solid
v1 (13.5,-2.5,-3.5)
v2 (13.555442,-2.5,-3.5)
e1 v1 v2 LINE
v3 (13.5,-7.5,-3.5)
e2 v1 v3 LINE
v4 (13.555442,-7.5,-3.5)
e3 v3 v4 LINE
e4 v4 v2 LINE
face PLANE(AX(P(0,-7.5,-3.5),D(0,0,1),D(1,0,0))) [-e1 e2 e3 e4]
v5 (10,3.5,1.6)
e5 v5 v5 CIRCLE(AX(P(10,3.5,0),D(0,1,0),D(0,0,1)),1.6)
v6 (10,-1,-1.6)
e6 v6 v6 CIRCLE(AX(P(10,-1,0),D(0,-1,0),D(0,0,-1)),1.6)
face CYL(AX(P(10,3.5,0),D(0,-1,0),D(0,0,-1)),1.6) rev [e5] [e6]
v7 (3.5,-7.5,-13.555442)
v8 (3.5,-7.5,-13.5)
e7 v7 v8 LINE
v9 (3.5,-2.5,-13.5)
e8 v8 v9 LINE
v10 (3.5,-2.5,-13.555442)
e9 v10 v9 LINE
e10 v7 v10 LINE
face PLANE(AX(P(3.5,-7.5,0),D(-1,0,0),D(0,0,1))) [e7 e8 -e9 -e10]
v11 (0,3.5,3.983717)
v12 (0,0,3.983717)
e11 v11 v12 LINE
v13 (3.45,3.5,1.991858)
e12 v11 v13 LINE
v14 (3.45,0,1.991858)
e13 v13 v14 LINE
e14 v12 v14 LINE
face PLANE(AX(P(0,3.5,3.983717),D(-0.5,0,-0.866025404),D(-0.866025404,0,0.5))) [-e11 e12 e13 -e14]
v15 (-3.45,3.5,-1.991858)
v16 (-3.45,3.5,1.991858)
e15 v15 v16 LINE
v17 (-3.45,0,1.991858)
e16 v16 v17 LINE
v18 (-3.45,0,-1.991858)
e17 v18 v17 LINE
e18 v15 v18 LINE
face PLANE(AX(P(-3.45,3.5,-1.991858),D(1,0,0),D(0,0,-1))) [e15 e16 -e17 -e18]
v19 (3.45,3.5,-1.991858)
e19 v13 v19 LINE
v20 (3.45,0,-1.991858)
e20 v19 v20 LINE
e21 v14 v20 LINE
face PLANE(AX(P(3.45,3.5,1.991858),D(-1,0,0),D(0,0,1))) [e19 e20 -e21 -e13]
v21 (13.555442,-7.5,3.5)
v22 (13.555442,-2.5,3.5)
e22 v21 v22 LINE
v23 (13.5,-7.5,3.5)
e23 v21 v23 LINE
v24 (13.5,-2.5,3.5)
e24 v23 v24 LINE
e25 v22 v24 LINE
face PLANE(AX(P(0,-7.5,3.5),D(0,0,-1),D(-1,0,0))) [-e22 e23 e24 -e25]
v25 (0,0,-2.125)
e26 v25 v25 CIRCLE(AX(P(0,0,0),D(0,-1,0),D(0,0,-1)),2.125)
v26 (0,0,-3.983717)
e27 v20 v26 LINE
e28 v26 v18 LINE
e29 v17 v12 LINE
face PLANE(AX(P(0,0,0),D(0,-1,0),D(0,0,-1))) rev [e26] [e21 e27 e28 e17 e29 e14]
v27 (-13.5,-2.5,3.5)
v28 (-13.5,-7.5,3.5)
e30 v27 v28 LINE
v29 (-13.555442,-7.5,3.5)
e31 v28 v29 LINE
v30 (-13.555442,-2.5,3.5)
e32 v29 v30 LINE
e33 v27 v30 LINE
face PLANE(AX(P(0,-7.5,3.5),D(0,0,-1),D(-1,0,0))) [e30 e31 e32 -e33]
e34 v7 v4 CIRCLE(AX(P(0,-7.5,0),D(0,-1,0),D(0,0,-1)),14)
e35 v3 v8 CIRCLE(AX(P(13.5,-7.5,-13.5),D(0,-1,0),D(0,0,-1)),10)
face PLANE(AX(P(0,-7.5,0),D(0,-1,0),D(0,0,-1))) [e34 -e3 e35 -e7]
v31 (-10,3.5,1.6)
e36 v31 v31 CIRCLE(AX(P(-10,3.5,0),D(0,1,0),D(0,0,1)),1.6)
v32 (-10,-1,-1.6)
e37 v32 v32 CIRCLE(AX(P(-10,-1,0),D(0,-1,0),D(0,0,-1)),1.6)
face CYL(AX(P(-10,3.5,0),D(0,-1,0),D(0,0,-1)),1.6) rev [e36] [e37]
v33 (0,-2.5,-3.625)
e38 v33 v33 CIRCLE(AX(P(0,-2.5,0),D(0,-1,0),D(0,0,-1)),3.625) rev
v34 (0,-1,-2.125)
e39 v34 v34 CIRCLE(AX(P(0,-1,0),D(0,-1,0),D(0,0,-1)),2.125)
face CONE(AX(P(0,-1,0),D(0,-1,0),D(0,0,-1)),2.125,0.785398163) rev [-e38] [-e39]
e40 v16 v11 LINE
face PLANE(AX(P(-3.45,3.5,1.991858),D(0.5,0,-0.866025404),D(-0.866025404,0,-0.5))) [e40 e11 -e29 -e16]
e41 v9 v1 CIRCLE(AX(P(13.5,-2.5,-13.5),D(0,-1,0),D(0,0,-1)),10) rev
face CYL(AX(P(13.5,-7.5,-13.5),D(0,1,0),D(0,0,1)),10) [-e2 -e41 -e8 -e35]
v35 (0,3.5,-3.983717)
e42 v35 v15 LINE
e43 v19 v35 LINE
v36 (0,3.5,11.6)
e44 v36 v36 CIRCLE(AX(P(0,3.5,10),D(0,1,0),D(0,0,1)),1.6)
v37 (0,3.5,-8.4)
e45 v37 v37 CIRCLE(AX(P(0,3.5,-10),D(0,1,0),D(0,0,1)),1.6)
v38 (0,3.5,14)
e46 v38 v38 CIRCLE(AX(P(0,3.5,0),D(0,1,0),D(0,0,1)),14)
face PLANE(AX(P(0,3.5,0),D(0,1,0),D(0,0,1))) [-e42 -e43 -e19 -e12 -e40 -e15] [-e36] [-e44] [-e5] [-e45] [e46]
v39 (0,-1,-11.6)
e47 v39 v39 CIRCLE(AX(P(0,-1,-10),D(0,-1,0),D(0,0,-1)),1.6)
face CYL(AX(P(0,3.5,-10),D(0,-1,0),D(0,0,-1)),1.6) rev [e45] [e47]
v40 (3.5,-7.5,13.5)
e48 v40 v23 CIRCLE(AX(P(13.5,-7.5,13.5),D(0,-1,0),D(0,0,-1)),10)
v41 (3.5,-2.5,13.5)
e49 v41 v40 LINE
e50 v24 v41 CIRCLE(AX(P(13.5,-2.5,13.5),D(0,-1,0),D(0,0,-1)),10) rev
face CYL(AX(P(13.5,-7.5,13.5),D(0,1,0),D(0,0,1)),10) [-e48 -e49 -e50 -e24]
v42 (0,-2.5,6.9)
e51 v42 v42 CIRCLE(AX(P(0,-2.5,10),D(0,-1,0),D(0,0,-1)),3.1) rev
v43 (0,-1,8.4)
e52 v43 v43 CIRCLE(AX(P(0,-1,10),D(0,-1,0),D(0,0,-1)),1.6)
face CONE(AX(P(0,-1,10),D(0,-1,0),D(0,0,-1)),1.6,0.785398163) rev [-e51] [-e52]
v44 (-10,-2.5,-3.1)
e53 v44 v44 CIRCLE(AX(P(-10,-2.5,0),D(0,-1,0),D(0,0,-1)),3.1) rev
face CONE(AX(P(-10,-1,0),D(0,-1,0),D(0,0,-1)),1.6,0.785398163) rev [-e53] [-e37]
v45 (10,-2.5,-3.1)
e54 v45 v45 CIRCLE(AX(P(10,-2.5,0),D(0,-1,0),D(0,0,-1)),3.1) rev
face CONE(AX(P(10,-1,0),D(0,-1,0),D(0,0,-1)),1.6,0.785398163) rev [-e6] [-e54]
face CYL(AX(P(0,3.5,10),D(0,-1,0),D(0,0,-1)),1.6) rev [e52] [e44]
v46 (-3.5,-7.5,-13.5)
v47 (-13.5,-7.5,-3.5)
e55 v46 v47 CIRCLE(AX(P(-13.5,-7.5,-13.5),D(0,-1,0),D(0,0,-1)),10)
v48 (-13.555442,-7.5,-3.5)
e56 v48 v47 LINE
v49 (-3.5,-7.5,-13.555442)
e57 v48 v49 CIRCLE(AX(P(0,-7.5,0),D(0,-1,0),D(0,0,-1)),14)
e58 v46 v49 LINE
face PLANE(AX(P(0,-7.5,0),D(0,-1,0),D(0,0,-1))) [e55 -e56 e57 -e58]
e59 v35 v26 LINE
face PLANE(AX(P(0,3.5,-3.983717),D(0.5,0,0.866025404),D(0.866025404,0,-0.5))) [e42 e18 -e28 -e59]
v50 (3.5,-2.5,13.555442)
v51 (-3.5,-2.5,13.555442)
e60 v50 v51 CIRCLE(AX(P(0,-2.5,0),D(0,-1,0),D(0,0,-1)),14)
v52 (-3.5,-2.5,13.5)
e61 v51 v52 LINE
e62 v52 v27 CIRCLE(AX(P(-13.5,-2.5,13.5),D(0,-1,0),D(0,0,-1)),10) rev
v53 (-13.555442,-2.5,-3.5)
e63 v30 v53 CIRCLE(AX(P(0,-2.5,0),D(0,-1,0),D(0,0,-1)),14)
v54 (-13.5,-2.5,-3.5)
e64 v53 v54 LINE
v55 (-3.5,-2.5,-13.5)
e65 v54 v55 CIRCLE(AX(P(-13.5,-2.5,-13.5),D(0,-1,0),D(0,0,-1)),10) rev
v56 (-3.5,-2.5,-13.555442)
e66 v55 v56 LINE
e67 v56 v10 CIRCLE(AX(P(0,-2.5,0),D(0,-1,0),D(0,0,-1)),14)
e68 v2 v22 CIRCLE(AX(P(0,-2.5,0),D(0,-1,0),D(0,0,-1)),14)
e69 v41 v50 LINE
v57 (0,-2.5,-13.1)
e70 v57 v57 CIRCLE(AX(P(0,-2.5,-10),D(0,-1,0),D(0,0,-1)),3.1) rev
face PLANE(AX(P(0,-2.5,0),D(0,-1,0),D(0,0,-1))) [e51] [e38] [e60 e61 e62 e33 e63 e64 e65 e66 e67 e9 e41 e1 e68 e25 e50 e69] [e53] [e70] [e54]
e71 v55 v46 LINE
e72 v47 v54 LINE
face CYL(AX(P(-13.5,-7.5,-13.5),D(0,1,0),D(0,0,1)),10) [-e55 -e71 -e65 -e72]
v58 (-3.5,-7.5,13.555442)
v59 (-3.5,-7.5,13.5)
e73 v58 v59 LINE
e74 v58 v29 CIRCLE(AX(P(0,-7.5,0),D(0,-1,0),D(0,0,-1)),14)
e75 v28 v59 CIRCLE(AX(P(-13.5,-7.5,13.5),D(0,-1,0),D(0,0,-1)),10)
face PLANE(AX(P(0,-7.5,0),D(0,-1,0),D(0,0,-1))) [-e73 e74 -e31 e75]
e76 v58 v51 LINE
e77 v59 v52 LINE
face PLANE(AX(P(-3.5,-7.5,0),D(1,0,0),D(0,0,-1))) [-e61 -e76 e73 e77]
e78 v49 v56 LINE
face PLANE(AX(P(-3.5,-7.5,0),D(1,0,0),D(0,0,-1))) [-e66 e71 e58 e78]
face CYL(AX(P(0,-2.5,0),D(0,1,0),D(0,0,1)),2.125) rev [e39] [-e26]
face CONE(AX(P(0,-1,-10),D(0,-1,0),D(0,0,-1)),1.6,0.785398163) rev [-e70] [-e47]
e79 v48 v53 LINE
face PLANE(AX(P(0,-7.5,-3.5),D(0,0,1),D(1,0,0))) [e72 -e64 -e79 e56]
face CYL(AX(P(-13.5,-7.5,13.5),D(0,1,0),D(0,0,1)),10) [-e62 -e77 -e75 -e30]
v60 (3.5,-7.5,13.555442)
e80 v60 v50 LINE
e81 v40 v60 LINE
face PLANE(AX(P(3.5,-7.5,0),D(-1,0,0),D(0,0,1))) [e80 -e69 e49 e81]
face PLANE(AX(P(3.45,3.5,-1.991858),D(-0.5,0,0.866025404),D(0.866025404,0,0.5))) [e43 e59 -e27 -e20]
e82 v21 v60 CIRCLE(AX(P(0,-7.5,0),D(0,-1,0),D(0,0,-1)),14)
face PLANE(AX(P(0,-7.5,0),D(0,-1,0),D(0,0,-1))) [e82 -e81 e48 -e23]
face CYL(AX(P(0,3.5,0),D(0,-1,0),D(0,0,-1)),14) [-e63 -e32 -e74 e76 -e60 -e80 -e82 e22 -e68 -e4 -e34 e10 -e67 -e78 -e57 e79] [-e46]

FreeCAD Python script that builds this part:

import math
import FreeCAD as App
import Part
import Sketcher
from FreeCAD import Vector
Q = App.Units.Quantity


def edges_at(feature, points):
    """Names of the edges that pass closest to the given points."""
    edges = feature.Shape.Edges
    near = lambda p: min(range(len(edges)), key=lambda i: edges[i].distToShape(Part.Vertex(*p))[0])
    return sorted({f"Edge{near(p) + 1}" for p in points})

doc = App.newDocument("Part")
body = doc.addObject("PartDesign::Body", "Body")

sketch1 = body.newObject("Sketcher::SketchObject", "Sketch")
sketch1.AttachmentSupport = (doc.getObject("XZ_Plane"), [""])
sketch1.MapMode = "FlatFace"
sketch1.addGeometry([
    Part.Circle(Vector(0, 0, 0), Vector(0, 0, 1), 14),
    Part.Circle(Vector(0, -10, 0), Vector(0, 0, 1), 1.6),
    Part.Circle(Vector(-10, 0, 0), Vector(0, 0, 1), 1.6),
    Part.Circle(Vector(10, 0, 0), Vector(0, 0, 1), 1.6),
    Part.LineSegment(Vector(-3.5, -2, 0), Vector(0, -4, 0)),
    Part.LineSegment(Vector(0, -4, 0), Vector(3.5, -2, 0)),
    Part.LineSegment(Vector(3.5, -2, 0), Vector(3.5, 2, 0)),
    Part.LineSegment(Vector(3.5, 2, 0), Vector(0, 4, 0)),
    Part.LineSegment(Vector(0, 4, 0), Vector(-3.5, 2, 0)),
    Part.LineSegment(Vector(-3.5, 2, 0), Vector(-3.5, -2, 0)),
    Part.Circle(Vector(0, 10, 0), Vector(0, 0, 1), 1.6),
], False)
sketch1.addConstraint([
    Sketcher.Constraint("Coincident", 4, 2, 5, 1),
    Sketcher.Constraint("Coincident", 5, 2, 6, 1),
    Sketcher.Constraint("Coincident", 6, 2, 7, 1),
    Sketcher.Constraint("Coincident", 7, 2, 8, 1),
    Sketcher.Constraint("Coincident", 8, 2, 9, 1),
    Sketcher.Constraint("Coincident", 9, 2, 4, 1),
    Sketcher.Constraint("Vertical", 6),
    Sketcher.Constraint("Vertical", 9),
    Sketcher.Constraint("Coincident", 0, 3, -1, 1),
    Sketcher.Constraint("Equal", 1, 2),
    Sketcher.Constraint("Equal", 2, 3),
    Sketcher.Constraint("Equal", 3, 10),
    Sketcher.Constraint("Symmetric", 2, 3, 3, 3, -1, 1),
    Sketcher.Constraint("Symmetric", 1, 3, 10, 3, -1, 1),
    Sketcher.Constraint("Symmetric", 4, 2, 7, 2, -1, 1),
    Sketcher.Constraint("Symmetric", 5, 2, 8, 2, -1, 1),
    Sketcher.Constraint("PointOnObject", 1, 3, -2),
    Sketcher.Constraint("PointOnObject", 2, 3, -1),
    Sketcher.Constraint("PointOnObject", 4, 2, -2),
    Sketcher.Constraint("Parallel", 4, 7),
    Sketcher.Constraint("Horizontal", 6, 2, 8, 2),
    Sketcher.Constraint("Diameter", 0, 28.0),
    Sketcher.Constraint("Diameter", 1, 3.2),
    Sketcher.Constraint("Angle", 4, Q("-30 deg")),
    Sketcher.Constraint("DistanceY", 1, 3, -1, 1, 10.0),
    Sketcher.Constraint("DistanceX", 2, 3, -1, 1, 10.0),
    Sketcher.Constraint("DistanceX", 8, 2, 6, 2, 6.9),
    Sketcher.Constraint("DistanceY", 6, 1, 6, 2, 3.983717),
])
pad1 = body.newObject("PartDesign::Pad", "Pad")
pad1.Profile = sketch1
pad1.Length = 3.5
pad1.Reversed = True

sketch2 = body.newObject("Sketcher::SketchObject", "Sketch001")
sketch2.AttachmentSupport = (doc.getObject("XZ_Plane"), [""])
sketch2.MapMode = "FlatFace"
sketch2.AttachmentOffset = App.Placement(Vector(0, 0, 2.5), App.Rotation())
sketch2.addGeometry([
    Part.Circle(Vector(0, 0, 0), Vector(0, 0, 1), 14),
    Part.Circle(Vector(0, 10, 0), Vector(0, 0, 1), 1.6),
    Part.Circle(Vector(-10, 0, 0), Vector(0, 0, 1), 1.6),
    Part.Circle(Vector(10, 0, 0), Vector(0, 0, 1), 1.6),
    Part.Circle(Vector(0, 0, 0), Vector(0, 0, 1), 2.1),
    Part.Circle(Vector(0, -10, 0), Vector(0, 0, 1), 1.6),
], False)
sketch2.addConstraint([
    Sketcher.Constraint("Coincident", 0, 3, -1, 1),
    Sketcher.Constraint("Coincident", 4, 3, -1, 1),
    Sketcher.Constraint("Equal", 1, 2),
    Sketcher.Constraint("Equal", 2, 3),
    Sketcher.Constraint("Equal", 3, 5),
    Sketcher.Constraint("Symmetric", 2, 3, 3, 3, -1, 1),
    Sketcher.Constraint("Symmetric", 1, 3, 5, 3, -1, 1),
    Sketcher.Constraint("PointOnObject", 1, 3, -2),
    Sketcher.Constraint("PointOnObject", 2, 3, -1),
    Sketcher.Constraint("Diameter", 0, 28.0),
    Sketcher.Constraint("Diameter", 1, 3.2),
    Sketcher.Constraint("Diameter", 4, 4.25),
    Sketcher.Constraint("DistanceY", -1, 1, 1, 3, 10.0),
    Sketcher.Constraint("DistanceX", 2, 3, -1, 1, 10.0),
])
pad2 = body.newObject("PartDesign::Pad", "Pad001")
pad2.Profile = sketch2
pad2.Length = 2.5
pad2.Reversed = True
doc.recompute()

chamfer = body.newObject("PartDesign::Chamfer", "Chamfer")
chamfer.Base = (pad2, edges_at(pad2, [
    (0, -2.5, 2.125),
    (10, -2.5, 1.6),
    (0, -2.5, -8.4),
    (-10, -2.5, 1.6),
    (0, -2.5, 11.6),
]))
chamfer.Size = 1.5

sketch3 = body.newObject("Sketcher::SketchObject", "Sketch002")
sketch3.AttachmentSupport = (doc.getObject("XZ_Plane"), [""])
sketch3.MapMode = "FlatFace"
sketch3.AttachmentOffset = App.Placement(Vector(0, 0, 7.5), App.Rotation())
sketch3.addGeometry([
    Part.ArcOfCircle(Part.Circle(Vector(0, 0, 0), Vector(0, 0, 1), 14), math.radians(104), math.radians(166)),
    Part.LineSegment(Vector(-14, 4, 0), Vector(-4, 4, 0)),
    Part.LineSegment(Vector(-4, 4, 0), Vector(-4, 14, 0)),
    Part.ArcOfCircle(Part.Circle(Vector(0, 0, 0), Vector(0, 0, 1), 14), math.radians(14), math.radians(76)),
    Part.LineSegment(Vector(4, 14, 0), Vector(4, 4, 0)),
    Part.LineSegment(Vector(4, 4, 0), Vector(14, 4, 0)),
    Part.LineSegment(Vector(14, -4, 0), Vector(4, -4, 0)),
    Part.LineSegment(Vector(4, -4, 0), Vector(4, -14, 0)),
    Part.ArcOfCircle(Part.Circle(Vector(0, 0, 0), Vector(0, 0, 1), 14), math.radians(-76), math.radians(-14)),
    Part.ArcOfCircle(Part.Circle(Vector(0, 0, 0), Vector(0, 0, 1), 14), math.radians(-166), math.radians(-104)),
    Part.LineSegment(Vector(-4, -14, 0), Vector(-4, -4, 0)),
    Part.LineSegment(Vector(-4, -4, 0), Vector(-14, -4, 0)),
], False)
sketch3.addConstraint([
    Sketcher.Constraint("Coincident", 0, 2, 1, 1),
    Sketcher.Constraint("Coincident", 1, 2, 2, 1),
    Sketcher.Constraint("Coincident", 2, 2, 0, 1),
    Sketcher.Constraint("Coincident", 3, 2, 4, 1),
    Sketcher.Constraint("Coincident", 4, 2, 5, 1),
    Sketcher.Constraint("Coincident", 5, 2, 3, 1),
    Sketcher.Constraint("Coincident", 6, 2, 7, 1),
    Sketcher.Constraint("Coincident", 7, 2, 8, 1),
    Sketcher.Constraint("Coincident", 8, 2, 6, 1),
    Sketcher.Constraint("Coincident", 9, 2, 10, 1),
    Sketcher.Constraint("Coincident", 10, 2, 11, 1),
    Sketcher.Constraint("Coincident", 11, 2, 9, 1),
    Sketcher.Constraint("Horizontal", 1),
    Sketcher.Constraint("Vertical", 2),
    Sketcher.Constraint("Vertical", 4),
    Sketcher.Constraint("Horizontal", 5),
    Sketcher.Constraint("Horizontal", 6),
    Sketcher.Constraint("Vertical", 7),
    Sketcher.Constraint("Vertical", 10),
    Sketcher.Constraint("Horizontal", 11),
    Sketcher.Constraint("Coincident", 0, 3, -1, 1),
    Sketcher.Constraint("Coincident", 3, 3, -1, 1),
    Sketcher.Constraint("Coincident", 8, 3, -1, 1),
    Sketcher.Constraint("Coincident", 9, 3, -1, 1),
    Sketcher.Constraint("Equal", 0, 3),
    Sketcher.Constraint("Equal", 3, 8),
    Sketcher.Constraint("Equal", 8, 9),
    Sketcher.Constraint("Symmetric", 1, 2, 6, 2, -1, 1),
    Sketcher.Constraint("Symmetric", 4, 2, 10, 2, -1, 1),
    Sketcher.Constraint("Symmetric", 1, 2, 4, 2, -2),
    Sketcher.Constraint("Equal", 11, 2),
    Sketcher.Constraint("Radius", 0, 14.0),
    Sketcher.Constraint("DistanceX", 2, 2, 3, 2, 7.0),
])
pad3 = body.newObject("PartDesign::Pad", "Pad002")
pad3.Profile = sketch3
pad3.Length = 5
pad3.Reversed = True
doc.recompute()

fillet = body.newObject("PartDesign::Fillet", "Fillet")
fillet.Base = (pad3, edges_at(pad3, [
    (-3.5, -5, 3.5),
    (-3.5, -5, -3.5),
    (3.5, -5, -3.5),
    (3.5, -5, 3.5),
]))
fillet.Radius = 10

doc.recompute()
